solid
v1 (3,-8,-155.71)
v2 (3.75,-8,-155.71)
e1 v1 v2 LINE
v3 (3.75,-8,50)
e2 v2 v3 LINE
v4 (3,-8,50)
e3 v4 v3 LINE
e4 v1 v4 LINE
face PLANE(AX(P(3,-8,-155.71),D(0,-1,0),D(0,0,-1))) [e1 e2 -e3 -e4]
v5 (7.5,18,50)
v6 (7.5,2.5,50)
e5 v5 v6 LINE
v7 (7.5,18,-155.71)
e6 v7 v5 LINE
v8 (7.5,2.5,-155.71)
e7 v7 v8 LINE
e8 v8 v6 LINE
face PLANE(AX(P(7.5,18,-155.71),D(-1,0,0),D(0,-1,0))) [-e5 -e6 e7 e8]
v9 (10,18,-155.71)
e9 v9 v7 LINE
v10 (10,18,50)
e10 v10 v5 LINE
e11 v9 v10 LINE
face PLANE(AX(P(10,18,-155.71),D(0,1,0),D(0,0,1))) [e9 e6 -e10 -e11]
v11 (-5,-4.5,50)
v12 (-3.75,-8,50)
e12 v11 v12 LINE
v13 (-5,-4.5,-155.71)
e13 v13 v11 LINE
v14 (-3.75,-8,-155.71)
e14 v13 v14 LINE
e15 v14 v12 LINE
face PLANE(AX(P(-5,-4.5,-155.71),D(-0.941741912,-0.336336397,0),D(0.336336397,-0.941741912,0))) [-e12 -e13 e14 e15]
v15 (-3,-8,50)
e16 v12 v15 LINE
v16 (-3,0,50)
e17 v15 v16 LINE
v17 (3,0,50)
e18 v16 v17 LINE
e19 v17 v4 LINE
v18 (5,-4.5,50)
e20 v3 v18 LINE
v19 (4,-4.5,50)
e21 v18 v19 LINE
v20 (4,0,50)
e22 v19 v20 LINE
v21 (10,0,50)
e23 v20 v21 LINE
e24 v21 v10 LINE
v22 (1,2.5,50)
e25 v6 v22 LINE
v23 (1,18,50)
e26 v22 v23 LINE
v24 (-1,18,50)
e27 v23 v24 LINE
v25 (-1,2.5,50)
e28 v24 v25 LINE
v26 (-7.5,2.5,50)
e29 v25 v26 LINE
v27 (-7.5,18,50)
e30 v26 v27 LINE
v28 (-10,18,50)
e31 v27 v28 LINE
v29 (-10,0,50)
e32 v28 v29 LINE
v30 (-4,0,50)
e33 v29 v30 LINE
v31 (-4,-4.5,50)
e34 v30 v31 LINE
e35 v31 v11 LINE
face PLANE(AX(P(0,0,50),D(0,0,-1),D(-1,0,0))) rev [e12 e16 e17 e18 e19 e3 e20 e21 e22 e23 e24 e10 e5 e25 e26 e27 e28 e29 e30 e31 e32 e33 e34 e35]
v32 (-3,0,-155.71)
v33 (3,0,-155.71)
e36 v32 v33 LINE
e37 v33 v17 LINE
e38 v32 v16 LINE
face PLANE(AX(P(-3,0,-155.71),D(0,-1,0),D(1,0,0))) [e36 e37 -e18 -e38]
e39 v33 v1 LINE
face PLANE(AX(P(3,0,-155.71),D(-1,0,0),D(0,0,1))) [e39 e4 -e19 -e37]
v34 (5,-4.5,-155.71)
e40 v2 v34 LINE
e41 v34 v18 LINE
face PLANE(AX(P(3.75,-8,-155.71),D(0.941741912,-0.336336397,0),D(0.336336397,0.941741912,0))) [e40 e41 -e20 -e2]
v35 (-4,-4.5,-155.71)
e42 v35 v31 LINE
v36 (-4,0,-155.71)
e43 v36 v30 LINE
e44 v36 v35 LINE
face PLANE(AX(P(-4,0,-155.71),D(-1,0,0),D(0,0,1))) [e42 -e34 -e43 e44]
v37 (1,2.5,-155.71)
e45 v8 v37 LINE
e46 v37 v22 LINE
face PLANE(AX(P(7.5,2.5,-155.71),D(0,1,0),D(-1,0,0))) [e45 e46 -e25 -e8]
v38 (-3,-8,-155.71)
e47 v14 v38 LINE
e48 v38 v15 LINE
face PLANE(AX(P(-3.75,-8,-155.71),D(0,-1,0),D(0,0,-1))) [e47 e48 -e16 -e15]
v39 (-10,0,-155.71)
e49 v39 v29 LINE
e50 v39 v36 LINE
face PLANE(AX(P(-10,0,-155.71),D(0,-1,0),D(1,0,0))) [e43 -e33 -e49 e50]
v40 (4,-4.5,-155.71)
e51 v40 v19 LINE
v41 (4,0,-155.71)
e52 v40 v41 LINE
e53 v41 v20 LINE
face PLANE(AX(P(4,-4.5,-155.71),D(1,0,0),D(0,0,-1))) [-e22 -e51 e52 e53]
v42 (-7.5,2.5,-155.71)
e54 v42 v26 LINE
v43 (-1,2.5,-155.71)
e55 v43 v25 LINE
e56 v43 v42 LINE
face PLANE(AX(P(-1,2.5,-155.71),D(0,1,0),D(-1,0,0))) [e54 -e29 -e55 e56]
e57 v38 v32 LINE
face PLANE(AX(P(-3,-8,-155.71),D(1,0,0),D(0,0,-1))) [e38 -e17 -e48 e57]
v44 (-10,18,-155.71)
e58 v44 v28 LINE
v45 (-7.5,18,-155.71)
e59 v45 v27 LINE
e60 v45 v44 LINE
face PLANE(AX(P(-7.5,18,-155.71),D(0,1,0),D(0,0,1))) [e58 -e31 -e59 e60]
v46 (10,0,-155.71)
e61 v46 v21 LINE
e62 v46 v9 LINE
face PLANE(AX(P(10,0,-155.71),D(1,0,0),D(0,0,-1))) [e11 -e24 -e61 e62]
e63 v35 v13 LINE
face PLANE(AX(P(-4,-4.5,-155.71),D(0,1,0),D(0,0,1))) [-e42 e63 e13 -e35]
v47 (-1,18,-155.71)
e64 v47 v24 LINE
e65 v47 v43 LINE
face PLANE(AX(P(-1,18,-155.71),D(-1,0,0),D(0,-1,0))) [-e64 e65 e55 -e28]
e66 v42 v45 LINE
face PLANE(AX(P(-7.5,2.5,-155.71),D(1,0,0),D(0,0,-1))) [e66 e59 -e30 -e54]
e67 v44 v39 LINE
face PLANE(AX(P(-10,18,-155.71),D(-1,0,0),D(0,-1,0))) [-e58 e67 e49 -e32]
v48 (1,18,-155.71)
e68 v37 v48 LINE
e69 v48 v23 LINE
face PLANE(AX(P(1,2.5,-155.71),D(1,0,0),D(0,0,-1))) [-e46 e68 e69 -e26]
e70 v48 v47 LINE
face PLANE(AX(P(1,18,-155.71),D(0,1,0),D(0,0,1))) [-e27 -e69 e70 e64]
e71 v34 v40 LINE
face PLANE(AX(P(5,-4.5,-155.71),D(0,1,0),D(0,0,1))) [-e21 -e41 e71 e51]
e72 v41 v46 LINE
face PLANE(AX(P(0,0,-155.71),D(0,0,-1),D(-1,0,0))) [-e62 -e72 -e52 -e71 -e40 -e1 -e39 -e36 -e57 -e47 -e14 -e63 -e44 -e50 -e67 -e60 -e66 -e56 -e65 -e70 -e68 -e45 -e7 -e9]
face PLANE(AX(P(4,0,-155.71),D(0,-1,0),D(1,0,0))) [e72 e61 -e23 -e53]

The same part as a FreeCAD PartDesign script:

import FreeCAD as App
import Part
import Sketcher
from FreeCAD import Vector


def add_polygon(sketch, points):
    """Adds a closed chain of lines whose ends are joined by coincident constraints."""
    first, n = sketch.GeometryCount, len(points)
    for a, b in zip(points, points[1:] + points[:1]):
        sketch.addGeometry(Part.LineSegment(App.Vector(*a, 0), App.Vector(*b, 0)), False)
    for i in range(n):
        sketch.addConstraint(Sketcher.Constraint("Coincident", first + i, 2, first + (i + 1) % n, 1))

doc = App.newDocument("Part")
body = doc.addObject("PartDesign::Body", "Body")

# Sketch on XY plane
sketch1 = body.newObject("Sketcher::SketchObject", "Sketch")
sketch1.AttachmentSupport = (doc.getObject("XY_Plane"), [""])
sketch1.MapMode = "FlatFace"
sketch1.AttachmentOffset = App.Placement(Vector(0, 0, 50), App.Rotation())
add_polygon(sketch1, [(-1, 2.5), (-7.5, 2.5), (-7.5, 18), (-10, 18), (-10, 0), (-4, 0), (-4, -4.5), (-5, -4.5), (-3.75, -8), (-3, -8), (-3, 0), (3, 0), (3, -8), (3.75, -8), (5, -4.5), (4, -4.5), (4, 0), (10, 0), (10, 18), (7.5, 18), (7.5, 2.5), (1, 2.5), (1, 18), (-1, 18)])  # lines 0-23
sketch1.addConstraint(Sketcher.Constraint("Horizontal", 0))
sketch1.addConstraint(Sketcher.Constraint("Vertical", 1))
sketch1.addConstraint(Sketcher.Constraint("Horizontal", 2))
sketch1.addConstraint(Sketcher.Constraint("Vertical", 3))
sketch1.addConstraint(Sketcher.Constraint("Horizontal", 4))
sketch1.addConstraint(Sketcher.Constraint("Vertical", 5))
sketch1.addConstraint(Sketcher.Constraint("Horizontal", 6))
sketch1.addConstraint(Sketcher.Constraint("Horizontal", 8))
sketch1.addConstraint(Sketcher.Constraint("Vertical", 9))
sketch1.addConstraint(Sketcher.Constraint("Horizontal", 10))
sketch1.addConstraint(Sketcher.Constraint("Vertical", 11))
sketch1.addConstraint(Sketcher.Constraint("Horizontal", 12))
sketch1.addConstraint(Sketcher.Constraint("Horizontal", 14))
sketch1.addConstraint(Sketcher.Constraint("Vertical", 15))
sketch1.addConstraint(Sketcher.Constraint("Horizontal", 16))
sketch1.addConstraint(Sketcher.Constraint("Vertical", 17))
sketch1.addConstraint(Sketcher.Constraint("Horizontal", 18))
sketch1.addConstraint(Sketcher.Constraint("Vertical", 19))
sketch1.addConstraint(Sketcher.Constraint("Horizontal", 20))
sketch1.addConstraint(Sketcher.Constraint("Vertical", 21))
sketch1.addConstraint(Sketcher.Constraint("Horizontal", 22))
sketch1.addConstraint(Sketcher.Constraint("Vertical", 23))
sketch1.addConstraint(Sketcher.Constraint("Symmetric", 9, 2, 10, 2, -1, 1))
sketch1.addConstraint(Sketcher.Constraint("Symmetric", 4, 2, 15, 2, -1, 1))
sketch1.addConstraint(Sketcher.Constraint("Symmetric", 7, 2, 12, 2, -2))
sketch1.addConstraint(Sketcher.Constraint("Symmetric", 6, 2, 13, 2, -2))
sketch1.addConstraint(Sketcher.Constraint("Symmetric", 3, 2, 16, 2, -2))
sketch1.addConstraint(Sketcher.Constraint("Symmetric", 1, 2, 18, 2, -2))
sketch1.addConstraint(Sketcher.Constraint("Symmetric", 20, 2, 23, 2, -2))
sketch1.addConstraint(Sketcher.Constraint("Horizontal", 18, 2, 21, 2))
sketch1.addConstraint(Sketcher.Constraint("Equal", 4, 10))
sketch1.addConstraint(Sketcher.Constraint("DistanceX", 4, 1, 4, 2, 6.0))
sketch1.addConstraint(Sketcher.Constraint("DistanceX", 6, 2, 6, 1, 1.0))
sketch1.addConstraint(Sketcher.Constraint("DistanceX", 22, 2, 22, 1, 2.0))
sketch1.addConstraint(Sketcher.Constraint("DistanceY", 3, 2, 3, 1, 18.0))
sketch1.addConstraint(Sketcher.Constraint("DistanceY", 9, 1, 9, 2, 8.0))
sketch1.addConstraint(Sketcher.Constraint("DistanceX", 0, 2, 0, 1, 6.5))
sketch1.addConstraint(Sketcher.Constraint("DistanceX", 2, 2, 2, 1, 2.5))
sketch1.addConstraint(Sketcher.Constraint("DistanceY", 1, 1, 1, 2, 15.5))
sketch1.addConstraint(Sketcher.Constraint("DistanceY", 5, 2, 5, 1, 4.5))
sketch1.addConstraint(Sketcher.Constraint("DistanceX", 8, 1, 8, 2, 0.75))
pad1 = body.newObject("PartDesign::Pad", "Pad")
pad1.Profile = sketch1
pad1.Length = 205.71
pad1.Reversed = True

doc.recompute()
